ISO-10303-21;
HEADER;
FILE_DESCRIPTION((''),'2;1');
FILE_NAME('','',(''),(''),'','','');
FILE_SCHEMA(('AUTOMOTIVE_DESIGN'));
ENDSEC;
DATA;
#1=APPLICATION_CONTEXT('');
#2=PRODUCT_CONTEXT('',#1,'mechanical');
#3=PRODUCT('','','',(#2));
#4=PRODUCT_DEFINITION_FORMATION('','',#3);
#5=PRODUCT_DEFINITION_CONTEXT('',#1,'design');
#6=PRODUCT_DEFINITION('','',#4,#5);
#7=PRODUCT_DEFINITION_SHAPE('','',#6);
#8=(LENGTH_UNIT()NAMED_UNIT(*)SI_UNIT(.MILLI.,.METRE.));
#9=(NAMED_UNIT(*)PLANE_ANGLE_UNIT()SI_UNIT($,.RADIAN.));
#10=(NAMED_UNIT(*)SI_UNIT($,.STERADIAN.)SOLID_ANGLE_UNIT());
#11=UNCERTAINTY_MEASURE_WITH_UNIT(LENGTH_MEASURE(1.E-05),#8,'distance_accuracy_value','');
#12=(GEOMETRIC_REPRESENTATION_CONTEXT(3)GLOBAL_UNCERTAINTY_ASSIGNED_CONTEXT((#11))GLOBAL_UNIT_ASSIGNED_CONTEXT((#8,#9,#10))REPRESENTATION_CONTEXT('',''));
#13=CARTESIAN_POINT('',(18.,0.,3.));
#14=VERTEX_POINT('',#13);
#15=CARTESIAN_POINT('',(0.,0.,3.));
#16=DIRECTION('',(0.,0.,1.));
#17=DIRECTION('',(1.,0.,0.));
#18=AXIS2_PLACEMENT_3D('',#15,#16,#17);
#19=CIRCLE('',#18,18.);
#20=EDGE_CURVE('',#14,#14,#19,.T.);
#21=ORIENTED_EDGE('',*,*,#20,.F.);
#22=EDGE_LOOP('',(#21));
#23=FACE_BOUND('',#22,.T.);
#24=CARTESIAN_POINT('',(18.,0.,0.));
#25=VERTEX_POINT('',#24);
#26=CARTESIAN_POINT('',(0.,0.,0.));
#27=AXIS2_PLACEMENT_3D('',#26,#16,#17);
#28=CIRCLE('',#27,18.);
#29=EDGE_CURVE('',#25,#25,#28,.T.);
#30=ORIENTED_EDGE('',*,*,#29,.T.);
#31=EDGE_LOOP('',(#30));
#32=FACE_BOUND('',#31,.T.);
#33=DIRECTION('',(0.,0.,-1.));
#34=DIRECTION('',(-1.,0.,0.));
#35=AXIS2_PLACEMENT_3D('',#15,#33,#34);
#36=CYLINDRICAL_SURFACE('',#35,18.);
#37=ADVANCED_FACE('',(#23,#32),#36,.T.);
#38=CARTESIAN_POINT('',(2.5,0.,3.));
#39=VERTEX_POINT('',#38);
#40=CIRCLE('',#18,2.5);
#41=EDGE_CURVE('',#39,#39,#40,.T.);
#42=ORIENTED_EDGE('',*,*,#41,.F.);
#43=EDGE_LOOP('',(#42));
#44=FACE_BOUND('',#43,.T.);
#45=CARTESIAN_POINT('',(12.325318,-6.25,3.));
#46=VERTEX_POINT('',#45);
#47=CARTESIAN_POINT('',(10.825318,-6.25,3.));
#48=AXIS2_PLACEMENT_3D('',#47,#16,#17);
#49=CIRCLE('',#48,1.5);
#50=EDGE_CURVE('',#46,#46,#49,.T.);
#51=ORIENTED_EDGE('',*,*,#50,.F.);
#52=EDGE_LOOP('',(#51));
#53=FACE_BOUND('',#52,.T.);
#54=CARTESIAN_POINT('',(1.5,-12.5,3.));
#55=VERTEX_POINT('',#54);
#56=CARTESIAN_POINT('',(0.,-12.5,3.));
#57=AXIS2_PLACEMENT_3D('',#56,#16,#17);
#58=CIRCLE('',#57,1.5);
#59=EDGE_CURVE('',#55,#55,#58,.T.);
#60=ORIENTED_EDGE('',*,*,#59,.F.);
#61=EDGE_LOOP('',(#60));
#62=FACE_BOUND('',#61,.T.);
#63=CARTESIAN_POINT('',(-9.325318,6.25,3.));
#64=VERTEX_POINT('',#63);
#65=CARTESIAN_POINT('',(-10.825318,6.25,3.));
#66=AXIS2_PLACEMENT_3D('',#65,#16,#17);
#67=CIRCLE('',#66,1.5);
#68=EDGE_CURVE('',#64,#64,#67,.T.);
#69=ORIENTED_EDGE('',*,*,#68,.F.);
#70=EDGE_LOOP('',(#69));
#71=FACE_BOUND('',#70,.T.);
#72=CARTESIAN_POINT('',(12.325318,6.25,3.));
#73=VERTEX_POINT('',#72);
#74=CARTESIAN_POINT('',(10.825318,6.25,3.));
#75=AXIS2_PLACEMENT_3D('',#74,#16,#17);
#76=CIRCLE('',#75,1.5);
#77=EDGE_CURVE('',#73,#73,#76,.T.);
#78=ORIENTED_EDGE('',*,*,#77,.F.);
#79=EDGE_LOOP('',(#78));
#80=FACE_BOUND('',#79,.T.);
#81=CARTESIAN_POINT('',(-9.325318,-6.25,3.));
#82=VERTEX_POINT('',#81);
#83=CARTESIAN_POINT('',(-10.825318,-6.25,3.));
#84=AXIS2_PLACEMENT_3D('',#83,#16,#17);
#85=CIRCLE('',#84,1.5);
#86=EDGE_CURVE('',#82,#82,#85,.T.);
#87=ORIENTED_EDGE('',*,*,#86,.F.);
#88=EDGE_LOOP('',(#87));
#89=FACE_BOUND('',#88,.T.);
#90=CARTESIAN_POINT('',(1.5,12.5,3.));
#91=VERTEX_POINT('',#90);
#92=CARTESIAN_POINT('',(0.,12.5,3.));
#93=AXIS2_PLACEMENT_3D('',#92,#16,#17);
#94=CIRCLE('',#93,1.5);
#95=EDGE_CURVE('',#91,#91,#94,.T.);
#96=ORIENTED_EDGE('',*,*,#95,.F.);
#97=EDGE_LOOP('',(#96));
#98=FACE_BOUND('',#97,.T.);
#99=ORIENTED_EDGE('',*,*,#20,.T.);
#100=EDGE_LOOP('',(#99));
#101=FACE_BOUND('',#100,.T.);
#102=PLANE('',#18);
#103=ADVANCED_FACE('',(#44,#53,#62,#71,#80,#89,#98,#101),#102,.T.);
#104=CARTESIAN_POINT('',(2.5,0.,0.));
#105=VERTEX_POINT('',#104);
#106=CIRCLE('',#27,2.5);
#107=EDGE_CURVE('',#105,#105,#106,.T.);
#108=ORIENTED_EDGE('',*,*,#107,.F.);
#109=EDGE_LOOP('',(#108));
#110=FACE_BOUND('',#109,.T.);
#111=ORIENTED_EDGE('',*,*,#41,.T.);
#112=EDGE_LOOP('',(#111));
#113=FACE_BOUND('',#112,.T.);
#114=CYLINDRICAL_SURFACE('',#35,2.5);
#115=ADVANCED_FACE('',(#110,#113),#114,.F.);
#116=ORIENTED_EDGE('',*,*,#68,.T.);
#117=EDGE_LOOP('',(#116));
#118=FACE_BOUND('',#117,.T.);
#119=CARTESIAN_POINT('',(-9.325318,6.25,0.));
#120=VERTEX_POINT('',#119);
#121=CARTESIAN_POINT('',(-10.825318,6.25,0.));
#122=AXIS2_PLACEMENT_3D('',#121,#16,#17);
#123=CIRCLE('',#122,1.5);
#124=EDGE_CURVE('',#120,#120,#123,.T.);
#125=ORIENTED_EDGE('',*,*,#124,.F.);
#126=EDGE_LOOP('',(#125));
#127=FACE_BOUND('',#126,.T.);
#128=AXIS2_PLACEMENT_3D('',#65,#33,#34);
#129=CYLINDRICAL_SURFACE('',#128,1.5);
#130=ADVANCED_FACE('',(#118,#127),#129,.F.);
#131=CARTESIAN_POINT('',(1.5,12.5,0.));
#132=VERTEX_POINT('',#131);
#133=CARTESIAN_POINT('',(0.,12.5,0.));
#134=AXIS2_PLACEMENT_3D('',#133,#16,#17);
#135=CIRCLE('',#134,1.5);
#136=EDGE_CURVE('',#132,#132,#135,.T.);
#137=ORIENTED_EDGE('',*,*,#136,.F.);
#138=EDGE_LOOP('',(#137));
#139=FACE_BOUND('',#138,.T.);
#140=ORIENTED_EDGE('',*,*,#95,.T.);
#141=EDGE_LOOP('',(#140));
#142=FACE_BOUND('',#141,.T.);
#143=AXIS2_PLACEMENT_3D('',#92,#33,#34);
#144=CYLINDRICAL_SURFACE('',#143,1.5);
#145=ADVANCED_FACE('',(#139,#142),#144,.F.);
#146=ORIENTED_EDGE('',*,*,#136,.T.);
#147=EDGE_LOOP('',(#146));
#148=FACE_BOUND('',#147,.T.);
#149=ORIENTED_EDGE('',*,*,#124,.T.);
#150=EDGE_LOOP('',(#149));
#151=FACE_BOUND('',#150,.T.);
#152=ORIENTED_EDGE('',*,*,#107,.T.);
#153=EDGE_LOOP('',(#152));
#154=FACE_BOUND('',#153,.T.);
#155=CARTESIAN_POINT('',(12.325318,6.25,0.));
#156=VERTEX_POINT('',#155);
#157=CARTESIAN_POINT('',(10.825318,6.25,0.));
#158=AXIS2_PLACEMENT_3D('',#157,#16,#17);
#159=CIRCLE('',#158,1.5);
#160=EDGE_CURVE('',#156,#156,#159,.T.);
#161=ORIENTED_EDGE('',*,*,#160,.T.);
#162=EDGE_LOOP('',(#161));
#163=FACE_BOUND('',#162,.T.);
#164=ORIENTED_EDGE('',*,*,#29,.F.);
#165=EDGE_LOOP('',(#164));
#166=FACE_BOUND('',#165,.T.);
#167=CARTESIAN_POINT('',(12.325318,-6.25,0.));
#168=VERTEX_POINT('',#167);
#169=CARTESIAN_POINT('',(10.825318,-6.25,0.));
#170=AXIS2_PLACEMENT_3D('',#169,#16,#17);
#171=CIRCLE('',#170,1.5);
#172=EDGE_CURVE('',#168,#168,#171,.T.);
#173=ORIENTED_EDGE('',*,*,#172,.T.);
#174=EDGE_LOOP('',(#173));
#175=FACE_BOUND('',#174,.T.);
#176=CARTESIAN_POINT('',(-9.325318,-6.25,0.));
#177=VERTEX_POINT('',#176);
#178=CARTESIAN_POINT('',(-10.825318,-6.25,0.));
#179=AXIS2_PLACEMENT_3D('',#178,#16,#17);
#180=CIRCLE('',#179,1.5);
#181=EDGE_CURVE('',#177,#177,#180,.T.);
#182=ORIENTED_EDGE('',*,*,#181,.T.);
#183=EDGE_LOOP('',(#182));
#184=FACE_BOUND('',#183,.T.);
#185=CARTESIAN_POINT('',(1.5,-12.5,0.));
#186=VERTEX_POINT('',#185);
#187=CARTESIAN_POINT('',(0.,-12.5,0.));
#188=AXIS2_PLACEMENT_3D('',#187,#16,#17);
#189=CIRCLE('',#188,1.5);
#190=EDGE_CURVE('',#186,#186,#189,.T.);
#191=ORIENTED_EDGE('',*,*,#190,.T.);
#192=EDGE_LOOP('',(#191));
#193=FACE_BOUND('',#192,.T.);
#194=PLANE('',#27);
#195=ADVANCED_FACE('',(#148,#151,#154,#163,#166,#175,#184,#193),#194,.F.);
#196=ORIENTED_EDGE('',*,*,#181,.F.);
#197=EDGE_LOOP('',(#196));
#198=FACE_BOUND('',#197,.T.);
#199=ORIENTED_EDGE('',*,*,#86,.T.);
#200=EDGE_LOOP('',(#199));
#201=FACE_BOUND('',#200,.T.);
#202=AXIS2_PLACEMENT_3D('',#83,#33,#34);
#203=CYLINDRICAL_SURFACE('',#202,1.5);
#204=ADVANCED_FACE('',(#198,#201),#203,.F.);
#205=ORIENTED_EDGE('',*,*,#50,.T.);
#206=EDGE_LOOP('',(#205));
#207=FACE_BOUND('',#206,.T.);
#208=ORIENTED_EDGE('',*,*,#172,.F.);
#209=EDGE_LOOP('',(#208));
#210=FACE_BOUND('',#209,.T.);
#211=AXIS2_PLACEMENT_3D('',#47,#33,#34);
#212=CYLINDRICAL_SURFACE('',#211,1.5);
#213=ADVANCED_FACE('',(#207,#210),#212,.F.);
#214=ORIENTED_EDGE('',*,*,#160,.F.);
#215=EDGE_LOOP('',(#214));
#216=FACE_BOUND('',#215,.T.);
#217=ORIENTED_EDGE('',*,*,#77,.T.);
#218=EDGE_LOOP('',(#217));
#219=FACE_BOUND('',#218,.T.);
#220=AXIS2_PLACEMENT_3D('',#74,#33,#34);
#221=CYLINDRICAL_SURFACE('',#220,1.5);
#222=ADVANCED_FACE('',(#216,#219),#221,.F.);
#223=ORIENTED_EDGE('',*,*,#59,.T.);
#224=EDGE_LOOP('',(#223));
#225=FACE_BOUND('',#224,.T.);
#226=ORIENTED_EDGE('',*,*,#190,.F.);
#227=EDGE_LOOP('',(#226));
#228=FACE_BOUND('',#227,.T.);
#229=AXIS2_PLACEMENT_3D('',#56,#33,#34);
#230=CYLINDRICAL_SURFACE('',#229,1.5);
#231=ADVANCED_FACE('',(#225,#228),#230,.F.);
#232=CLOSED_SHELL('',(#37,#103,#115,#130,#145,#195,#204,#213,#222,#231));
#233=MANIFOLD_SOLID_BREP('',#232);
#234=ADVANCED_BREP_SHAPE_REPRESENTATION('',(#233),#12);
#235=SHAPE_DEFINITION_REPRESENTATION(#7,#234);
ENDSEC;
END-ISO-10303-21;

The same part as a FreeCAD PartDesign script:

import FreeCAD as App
import Part
import Sketcher
Q = App.Units.Quantity

doc = App.newDocument("Part")
body = doc.addObject("PartDesign::Body", "Body")

# Sketch on XY plane
sketch1 = body.newObject("Sketcher::SketchObject", "Sketch")
sketch1.AttachmentSupport = (doc.getObject("XY_Plane"), [""])
sketch1.MapMode = "FlatFace"
sketch1.addGeometry(Part.Circle(App.Vector(0, 0, 0), App.Vector(0, 0, 1), 18), False)
sketch1.addGeometry(Part.Circle(App.Vector(-10.8, -6.2, 0), App.Vector(0, 0, 1), 1.5), False)
sketch1.addGeometry(Part.Circle(App.Vector(0, -12.5, 0), App.Vector(0, 0, 1), 1.5), False)
sketch1.addGeometry(Part.Circle(App.Vector(10.8, -6.2, 0), App.Vector(0, 0, 1), 1.5), False)
sketch1.addGeometry(Part.Circle(App.Vector(-10.8, 6.2, 0), App.Vector(0, 0, 1), 1.5), False)
sketch1.addGeometry(Part.Circle(App.Vector(0, 0, 0), App.Vector(0, 0, 1), 2.5), False)
sketch1.addGeometry(Part.Circle(App.Vector(10.8, 6.2, 0), App.Vector(0, 0, 1), 1.5), False)
sketch1.addGeometry(Part.Circle(App.Vector(0, 12.5, 0), App.Vector(0, 0, 1), 1.5), False)
sketch1.addConstraint(Sketcher.Constraint("Coincident", 0, 3, -1, 1))
sketch1.addConstraint(Sketcher.Constraint("Coincident", 5, 3, -1, 1))
sketch1.addConstraint(Sketcher.Constraint("Equal", 1, 2))
sketch1.addConstraint(Sketcher.Constraint("Equal", 2, 3))
sketch1.addConstraint(Sketcher.Constraint("Equal", 3, 4))
sketch1.addConstraint(Sketcher.Constraint("Equal", 4, 6))
sketch1.addConstraint(Sketcher.Constraint("Equal", 6, 7))
sketch1.addConstraint(Sketcher.Constraint("Symmetric", 3, 3, 4, 3, -1, 1))
sketch1.addConstraint(Sketcher.Constraint("Symmetric", 1, 3, 6, 3, -1, 1))
sketch1.addConstraint(Sketcher.Constraint("Symmetric", 2, 3, 7, 3, -1, 1))
sketch1.addConstraint(Sketcher.Constraint("Symmetric", 1, 3, 3, 3, -2))
sketch1.addConstraint(Sketcher.Constraint("PointOnObject", 2, 3, -2))
sketch1.addConstraint(Sketcher.Constraint("Diameter", 0, Q("36 mm")))
sketch1.addConstraint(Sketcher.Constraint("Diameter", 1, Q("3 mm")))
sketch1.addConstraint(Sketcher.Constraint("Diameter", 5, Q("5 mm")))
sketch1.addConstraint(Sketcher.Constraint("DistanceY", 2, 3, -1, 1, Q("12.5 mm")))
sketch1.addConstraint(Sketcher.Constraint("DistanceY", 1, 3, 4, 3, Q("12.5 mm")))
sketch1.addConstraint(Sketcher.Constraint("DistanceX", 1, 3, -1, 1, Q("10.825318 mm")))
pad1 = body.newObject("PartDesign::Pad", "Pad")
pad1.Profile = sketch1
pad1.Length = 3

doc.recompute()
